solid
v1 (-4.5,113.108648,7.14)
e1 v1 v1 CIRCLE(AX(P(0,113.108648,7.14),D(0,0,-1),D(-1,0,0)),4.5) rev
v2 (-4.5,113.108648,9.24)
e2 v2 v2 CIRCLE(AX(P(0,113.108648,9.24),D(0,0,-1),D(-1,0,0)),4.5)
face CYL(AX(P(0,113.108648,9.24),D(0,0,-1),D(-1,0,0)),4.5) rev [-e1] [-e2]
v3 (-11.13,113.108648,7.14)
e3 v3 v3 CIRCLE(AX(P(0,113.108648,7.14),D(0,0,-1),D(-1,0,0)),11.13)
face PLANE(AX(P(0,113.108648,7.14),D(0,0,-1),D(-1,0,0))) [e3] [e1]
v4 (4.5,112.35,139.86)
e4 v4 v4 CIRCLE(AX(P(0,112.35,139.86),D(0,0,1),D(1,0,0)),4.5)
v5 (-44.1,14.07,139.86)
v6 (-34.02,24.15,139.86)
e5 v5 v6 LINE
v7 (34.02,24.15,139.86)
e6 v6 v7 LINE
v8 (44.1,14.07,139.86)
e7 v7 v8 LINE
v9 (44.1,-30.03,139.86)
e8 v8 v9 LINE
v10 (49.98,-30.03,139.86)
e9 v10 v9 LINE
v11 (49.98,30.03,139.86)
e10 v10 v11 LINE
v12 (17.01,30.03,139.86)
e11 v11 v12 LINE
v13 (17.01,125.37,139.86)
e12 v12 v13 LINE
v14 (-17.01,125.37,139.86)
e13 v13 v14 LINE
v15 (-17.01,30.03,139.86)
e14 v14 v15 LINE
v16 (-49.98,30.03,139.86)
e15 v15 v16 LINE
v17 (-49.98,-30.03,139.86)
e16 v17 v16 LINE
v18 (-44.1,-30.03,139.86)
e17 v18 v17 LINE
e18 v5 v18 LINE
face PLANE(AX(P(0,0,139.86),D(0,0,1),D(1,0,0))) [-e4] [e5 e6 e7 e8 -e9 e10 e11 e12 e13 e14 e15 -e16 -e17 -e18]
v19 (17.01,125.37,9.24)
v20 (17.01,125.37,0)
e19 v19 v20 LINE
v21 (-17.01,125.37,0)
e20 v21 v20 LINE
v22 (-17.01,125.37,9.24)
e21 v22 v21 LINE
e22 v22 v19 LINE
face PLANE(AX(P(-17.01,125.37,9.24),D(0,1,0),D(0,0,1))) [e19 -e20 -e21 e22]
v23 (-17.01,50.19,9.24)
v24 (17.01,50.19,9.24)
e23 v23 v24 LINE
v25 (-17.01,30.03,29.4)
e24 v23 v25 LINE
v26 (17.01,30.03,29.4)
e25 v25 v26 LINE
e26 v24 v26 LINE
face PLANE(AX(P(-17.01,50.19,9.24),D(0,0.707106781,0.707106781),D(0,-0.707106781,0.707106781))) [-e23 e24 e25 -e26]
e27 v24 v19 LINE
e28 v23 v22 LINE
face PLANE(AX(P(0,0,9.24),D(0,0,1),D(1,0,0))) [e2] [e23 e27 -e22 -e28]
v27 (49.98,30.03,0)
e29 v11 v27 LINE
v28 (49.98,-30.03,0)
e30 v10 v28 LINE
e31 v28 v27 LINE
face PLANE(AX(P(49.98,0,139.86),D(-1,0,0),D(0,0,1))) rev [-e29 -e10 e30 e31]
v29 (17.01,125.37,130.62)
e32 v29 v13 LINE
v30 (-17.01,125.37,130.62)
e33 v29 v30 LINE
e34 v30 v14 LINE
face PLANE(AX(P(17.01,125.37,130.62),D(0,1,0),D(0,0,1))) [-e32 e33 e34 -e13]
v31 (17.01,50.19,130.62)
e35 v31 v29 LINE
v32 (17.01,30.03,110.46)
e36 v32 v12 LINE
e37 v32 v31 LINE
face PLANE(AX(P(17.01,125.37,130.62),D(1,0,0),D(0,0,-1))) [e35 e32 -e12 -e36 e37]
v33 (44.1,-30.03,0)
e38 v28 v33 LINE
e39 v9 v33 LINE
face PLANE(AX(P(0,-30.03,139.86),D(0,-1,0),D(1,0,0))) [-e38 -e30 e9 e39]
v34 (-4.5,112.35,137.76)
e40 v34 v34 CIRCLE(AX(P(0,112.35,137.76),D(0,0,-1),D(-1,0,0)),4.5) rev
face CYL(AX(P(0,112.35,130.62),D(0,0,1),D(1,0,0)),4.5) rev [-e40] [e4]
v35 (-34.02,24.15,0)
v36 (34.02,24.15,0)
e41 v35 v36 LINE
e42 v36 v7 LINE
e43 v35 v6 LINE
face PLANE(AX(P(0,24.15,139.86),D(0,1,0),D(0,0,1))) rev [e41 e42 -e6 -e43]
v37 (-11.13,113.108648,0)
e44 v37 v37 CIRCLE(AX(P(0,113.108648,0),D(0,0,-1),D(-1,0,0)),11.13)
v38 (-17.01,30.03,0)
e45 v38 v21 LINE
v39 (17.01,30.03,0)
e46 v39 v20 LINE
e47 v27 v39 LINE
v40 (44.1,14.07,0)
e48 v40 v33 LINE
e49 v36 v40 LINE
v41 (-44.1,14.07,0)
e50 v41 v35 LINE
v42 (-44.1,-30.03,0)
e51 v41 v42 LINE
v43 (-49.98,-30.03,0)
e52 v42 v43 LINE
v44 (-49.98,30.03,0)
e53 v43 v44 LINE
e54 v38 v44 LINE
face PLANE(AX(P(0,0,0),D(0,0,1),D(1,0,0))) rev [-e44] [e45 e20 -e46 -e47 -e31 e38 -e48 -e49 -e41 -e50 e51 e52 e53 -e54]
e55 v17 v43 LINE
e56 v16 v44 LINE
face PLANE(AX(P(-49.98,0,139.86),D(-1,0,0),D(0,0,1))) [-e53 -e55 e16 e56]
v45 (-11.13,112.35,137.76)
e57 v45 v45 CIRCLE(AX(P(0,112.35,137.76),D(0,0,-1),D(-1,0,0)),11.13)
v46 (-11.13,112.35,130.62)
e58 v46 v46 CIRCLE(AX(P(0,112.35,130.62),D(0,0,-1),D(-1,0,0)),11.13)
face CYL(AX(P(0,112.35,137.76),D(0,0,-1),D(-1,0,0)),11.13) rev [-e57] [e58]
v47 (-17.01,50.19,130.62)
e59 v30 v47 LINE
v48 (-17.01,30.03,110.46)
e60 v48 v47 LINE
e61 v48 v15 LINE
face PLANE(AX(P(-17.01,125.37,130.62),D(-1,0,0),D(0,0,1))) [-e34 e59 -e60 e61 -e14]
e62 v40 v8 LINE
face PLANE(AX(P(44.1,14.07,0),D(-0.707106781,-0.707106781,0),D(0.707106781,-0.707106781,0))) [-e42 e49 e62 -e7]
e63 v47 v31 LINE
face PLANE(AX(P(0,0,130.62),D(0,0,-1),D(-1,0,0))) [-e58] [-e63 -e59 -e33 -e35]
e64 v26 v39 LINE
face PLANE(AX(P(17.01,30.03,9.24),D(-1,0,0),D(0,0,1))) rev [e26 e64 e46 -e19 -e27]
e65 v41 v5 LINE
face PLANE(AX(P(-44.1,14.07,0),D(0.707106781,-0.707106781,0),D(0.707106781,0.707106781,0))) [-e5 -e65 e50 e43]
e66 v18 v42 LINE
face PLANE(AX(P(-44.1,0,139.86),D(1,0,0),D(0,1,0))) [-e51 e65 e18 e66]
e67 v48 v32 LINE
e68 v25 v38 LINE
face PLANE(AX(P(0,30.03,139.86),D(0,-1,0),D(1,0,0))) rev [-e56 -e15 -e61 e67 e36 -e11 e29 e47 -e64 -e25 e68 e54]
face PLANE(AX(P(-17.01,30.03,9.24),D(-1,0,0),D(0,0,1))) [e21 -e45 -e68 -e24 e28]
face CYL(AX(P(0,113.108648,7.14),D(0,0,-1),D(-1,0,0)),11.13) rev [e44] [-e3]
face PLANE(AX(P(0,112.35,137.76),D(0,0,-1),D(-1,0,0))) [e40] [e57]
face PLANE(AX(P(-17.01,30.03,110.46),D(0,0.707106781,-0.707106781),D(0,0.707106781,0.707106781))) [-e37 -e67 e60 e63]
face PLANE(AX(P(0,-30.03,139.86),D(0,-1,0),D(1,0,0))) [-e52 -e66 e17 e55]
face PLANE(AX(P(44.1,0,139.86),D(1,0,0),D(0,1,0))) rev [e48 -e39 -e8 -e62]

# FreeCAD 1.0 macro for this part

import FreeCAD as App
import Part
import Sketcher
Q = App.Units.Quantity


def add_polygon(sketch, points):
    """Adds a closed chain of lines whose ends are joined by coincident constraints."""
    first, n = sketch.GeometryCount, len(points)
    for a, b in zip(points, points[1:] + points[:1]):
        sketch.addGeometry(Part.LineSegment(App.Vector(*a, 0), App.Vector(*b, 0)), False)
    for i in range(n):
        sketch.addConstraint(Sketcher.Constraint("Coincident", first + i, 2, first + (i + 1) % n, 1))

doc = App.newDocument("Part")
body = doc.addObject("PartDesign::Body", "Body")

sketch1 = body.newObject("Sketcher::SketchObject", "Sketch")
sketch1.AttachmentSupport = (doc.getObject("XY_Plane"), [""])
sketch1.MapMode = "FlatFace"
add_polygon(sketch1, [(44, -30), (50, -30), (50, 30), (-50, 30), (-50, -30), (-44, -30), (-44, 24), (44, 24)])
sketch1.addConstraint(Sketcher.Constraint("Horizontal", 0))
sketch1.addConstraint(Sketcher.Constraint("Vertical", 1))
sketch1.addConstraint(Sketcher.Constraint("Horizontal", 2))
sketch1.addConstraint(Sketcher.Constraint("Vertical", 3))
sketch1.addConstraint(Sketcher.Constraint("Horizontal", 4))
sketch1.addConstraint(Sketcher.Constraint("Vertical", 5))
sketch1.addConstraint(Sketcher.Constraint("Horizontal", 6))
sketch1.addConstraint(Sketcher.Constraint("Vertical", 7))
sketch1.addConstraint(Sketcher.Constraint("Symmetric", 0, 2, 2, 2, -1, 1))
sketch1.addConstraint(Sketcher.Constraint("Symmetric", 4, 2, 7, 2, -2))
sketch1.addConstraint(Sketcher.Constraint("DistanceX", 6, 1, 6, 2, Q("88.2 mm")))
sketch1.addConstraint(Sketcher.Constraint("DistanceX", 0, 1, 0, 2, Q("5.88 mm")))
sketch1.addConstraint(Sketcher.Constraint("DistanceY", 1, 1, 1, 2, Q("60.06 mm")))
sketch1.addConstraint(Sketcher.Constraint("DistanceY", 5, 1, 5, 2, Q("54.18 mm")))
pad1 = body.newObject("PartDesign::Pad", "Pad")
pad1.Profile = sketch1
pad1.Length = 139.86

sketch2 = body.newObject("Sketcher::SketchObject", "Sketch001")
sketch2.AttachmentSupport = (doc.getObject("XY_Plane"), [""])
sketch2.MapMode = "FlatFace"
sketch2.AttachmentOffset = App.Placement(App.Vector(0, 0, 139.86), App.Rotation())
add_polygon(sketch2, [(-44, 24), (-44, 14), (-34, 24)])
add_polygon(sketch2, [(44, 14), (44, 24), (34, 24)])
sketch2.addConstraint(Sketcher.Constraint("Vertical", 0))
sketch2.addConstraint(Sketcher.Constraint("Horizontal", 2))
sketch2.addConstraint(Sketcher.Constraint("Vertical", 3))
sketch2.addConstraint(Sketcher.Constraint("Horizontal", 4))
sketch2.addConstraint(Sketcher.Constraint("Symmetric", 2, 2, 3, 2, -2))
sketch2.addConstraint(Sketcher.Constraint("Perpendicular", 1, 5))
sketch2.addConstraint(Sketcher.Constraint("Horizontal", 0, 2, 5, 2))
sketch2.addConstraint(Sketcher.Constraint("Equal", 2, 4))
sketch2.addConstraint(Sketcher.Constraint("DistanceX", 2, 2, 2, 1, Q("10.08 mm")))
sketch2.addConstraint(Sketcher.Constraint("DistanceX", 0, 2, -1, 1, Q("44.1 mm")))
sketch2.addConstraint(Sketcher.Constraint("DistanceY", -1, 1, 0, 2, Q("14.07 mm")))
pad2 = body.newObject("PartDesign::Pad", "Pad001")
pad2.Profile = sketch2
pad2.Length = 139.86
pad2.Reversed = True

sketch3 = body.newObject("Sketcher::SketchObject", "Sketch002")
sketch3.AttachmentSupport = (doc.getObject("XY_Plane"), [""])
sketch3.MapMode = "FlatFace"
sketch3.AttachmentOffset = App.Placement(App.Vector(0, 0, 139.86), App.Rotation())
add_polygon(sketch3, [(-17, 125), (-17, 30), (17, 30), (17, 125)])
sketch3.addConstraint(Sketcher.Constraint("Vertical", 0))
sketch3.addConstraint(Sketcher.Constraint("Horizontal", 1))
sketch3.addConstraint(Sketcher.Constraint("Vertical", 2))
sketch3.addConstraint(Sketcher.Constraint("Horizontal", 3))
sketch3.addConstraint(Sketcher.Constraint("DistanceX", 1, 1, 1, 2, Q("34.02 mm")))
sketch3.addConstraint(Sketcher.Constraint("DistanceY", 0, 2, 0, 1, Q("95.34 mm")))
sketch3.addConstraint(Sketcher.Constraint("DistanceX", 0, 2, -1, 1, Q("17.01 mm")))
sketch3.addConstraint(Sketcher.Constraint("DistanceY", -1, 1, 0, 2, Q("30.03 mm")))
pad3 = body.newObject("PartDesign::Pad", "Pad002")
pad3.Profile = sketch3
pad3.Length = 9.24
pad3.Reversed = True

sketch4 = body.newObject("Sketcher::SketchObject", "Sketch003")
sketch4.AttachmentSupport = (doc.getObject("XY_Plane"), [""])
sketch4.MapMode = "FlatFace"
sketch4.AttachmentOffset = App.Placement(App.Vector(0, 0, 139.86), App.Rotation())
sketch4.addGeometry(Part.Circle(App.Vector(0, 112.3, 0), App.Vector(0, 0, 1), 4.5), False)
sketch4.addConstraint(Sketcher.Constraint("PointOnObject", 0, 3, -2))
sketch4.addConstraint(Sketcher.Constraint("Diameter", 0, Q("9 mm")))
sketch4.addConstraint(Sketcher.Constraint("DistanceY", -1, 1, 0, 3, Q("112.35 mm")))
pocket1 = body.newObject("PartDesign::Pocket", "Pocket")
pocket1.Profile = sketch4
pocket1.Length = 9.24

sketch5 = body.newObject("Sketcher::SketchObject", "Sketch004")
sketch5.AttachmentSupport = (doc.getObject("YZ_Plane"), [""])
sketch5.MapMode = "FlatFace"
sketch5.AttachmentOffset = App.Placement(App.Vector(0, 0, 17.01), App.Rotation())
add_polygon(sketch5, [(50, 131), (30, 131), (30, 110)])
sketch5.addConstraint(Sketcher.Constraint("Horizontal", 0))
sketch5.addConstraint(Sketcher.Constraint("Vertical", 1))
sketch5.addConstraint(Sketcher.Constraint("Equal", 0, 1))
sketch5.addConstraint(Sketcher.Constraint("DistanceX", 0, 2, 0, 1, Q("20.16 mm")))
sketch5.addConstraint(Sketcher.Constraint("DistanceX", -1, 1, 0, 2, Q("30.03 mm")))
sketch5.addConstraint(Sketcher.Constraint("DistanceY", -1, 1, 0, 2, Q("130.62 mm")))
pad4 = body.newObject("PartDesign::Pad", "Pad003")
pad4.Profile = sketch5
pad4.Length = 34.02
pad4.Reversed = True

sketch6 = body.newObject("Sketcher::SketchObject", "Sketch005")
sketch6.AttachmentSupport = (doc.getObject("XY_Plane"), [""])
sketch6.MapMode = "FlatFace"
add_polygon(sketch6, [(17, 125), (17, 30), (-17, 30), (-17, 125)])
sketch6.addConstraint(Sketcher.Constraint("Vertical", 0))
sketch6.addConstraint(Sketcher.Constraint("Horizontal", 1))
sketch6.addConstraint(Sketcher.Constraint("Vertical", 2))
sketch6.addConstraint(Sketcher.Constraint("Horizontal", 3))
sketch6.addConstraint(Sketcher.Constraint("DistanceX", 1, 2, 1, 1, Q("34.02 mm")))
sketch6.addConstraint(Sketcher.Constraint("DistanceY", 0, 2, 0, 1, Q("95.34 mm")))
sketch6.addConstraint(Sketcher.Constraint("DistanceX", -1, 1, 0, 2, Q("17.01 mm")))
sketch6.addConstraint(Sketcher.Constraint("DistanceY", -1, 1, 0, 2, Q("30.03 mm")))
pad5 = body.newObject("PartDesign::Pad", "Pad004")
pad5.Profile = sketch6
pad5.Length = 9.24

sketch7 = body.newObject("Sketcher::SketchObject", "Sketch006")
sketch7.AttachmentSupport = (doc.getObject("XY_Plane"), [""])
sketch7.MapMode = "FlatFace"
sketch7.addGeometry(Part.Circle(App.Vector(0, 113.1, 0), App.Vector(0, 0, 1), 4.5), False)
sketch7.addConstraint(Sketcher.Constraint("PointOnObject", 0, 3, -2))
sketch7.addConstraint(Sketcher.Constraint("Diameter", 0, Q("9 mm")))
sketch7.addConstraint(Sketcher.Constraint("DistanceY", -1, 1, 0, 3, Q("113.108648 mm")))
pocket2 = body.newObject("PartDesign::Pocket", "Pocket001")
pocket2.Profile = sketch7
pocket2.Length = 9.24
pocket2.Reversed = True

sketch8 = body.newObject("Sketcher::SketchObject", "Sketch007")
sketch8.AttachmentSupport = (doc.getObject("XY_Plane"), [""])
sketch8.MapMode = "FlatFace"
sketch8.addGeometry(Part.Circle(App.Vector(0, 113, 0), App.Vector(0, 0, 1), 11), False)
sketch8.addConstraint(Sketcher.Constraint("PointOnObject", 0, 3, -2))
sketch8.addConstraint(Sketcher.Constraint("Diameter", 0, Q("22.26 mm")))
sketch8.addConstraint(Sketcher.Constraint("DistanceY", -1, 1, 0, 3, Q("113.108648 mm")))
pocket3 = body.newObject("PartDesign::Pocket", "Pocket002")
pocket3.Profile = sketch8
pocket3.Length = 7.14
pocket3.Reversed = True

sketch9 = body.newObject("Sketcher::SketchObject", "Sketch008")
sketch9.AttachmentSupport = (doc.getObject("YZ_Plane"), [""])
sketch9.MapMode = "FlatFace"
sketch9.AttachmentOffset = App.Placement(App.Vector(0, 0, 17.01), App.Rotation())
add_polygon(sketch9, [(30, 9), (50, 9), (30, 29)])
sketch9.addConstraint(Sketcher.Constraint("Horizontal", 0))
sketch9.addConstraint(Sketcher.Constraint("Vertical", 2))
sketch9.addConstraint(Sketcher.Constraint("Equal", 0, 2))
sketch9.addConstraint(Sketcher.Constraint("DistanceX", 0, 1, 0, 2, Q("20.16 mm")))
sketch9.addConstraint(Sketcher.Constraint("DistanceY", -1, 1, 1, 2, Q("29.4 mm")))
sketch9.addConstraint(Sketcher.Constraint("DistanceX", -1, 1, 0, 2, Q("50.19 mm")))
pad6 = body.newObject("PartDesign::Pad", "Pad005")
pad6.Profile = sketch9
pad6.Length = 34.02
pad6.Reversed = True

sketch10 = body.newObject("Sketcher::SketchObject", "Sketch009")
sketch10.AttachmentSupport = (doc.getObject("XY_Plane"), [""])
sketch10.MapMode = "FlatFace"
sketch10.AttachmentOffset = App.Placement(App.Vector(0, 0, 130.62), App.Rotation())
sketch10.addGeometry(Part.Circle(App.Vector(0, 112, 0), App.Vector(0, 0, 1), 11), False)
sketch10.addConstraint(Sketcher.Constraint("PointOnObject", 0, 3, -2))
sketch10.addConstraint(Sketcher.Constraint("Diameter", 0, Q("22.26 mm")))
sketch10.addConstraint(Sketcher.Constraint("DistanceY", -1, 1, 0, 3, Q("112.35 mm")))
pocket4 = body.newObject("PartDesign::Pocket", "Pocket003")
pocket4.Profile = sketch10
pocket4.Length = 7.14
pocket4.Reversed = True

doc.recompute()
